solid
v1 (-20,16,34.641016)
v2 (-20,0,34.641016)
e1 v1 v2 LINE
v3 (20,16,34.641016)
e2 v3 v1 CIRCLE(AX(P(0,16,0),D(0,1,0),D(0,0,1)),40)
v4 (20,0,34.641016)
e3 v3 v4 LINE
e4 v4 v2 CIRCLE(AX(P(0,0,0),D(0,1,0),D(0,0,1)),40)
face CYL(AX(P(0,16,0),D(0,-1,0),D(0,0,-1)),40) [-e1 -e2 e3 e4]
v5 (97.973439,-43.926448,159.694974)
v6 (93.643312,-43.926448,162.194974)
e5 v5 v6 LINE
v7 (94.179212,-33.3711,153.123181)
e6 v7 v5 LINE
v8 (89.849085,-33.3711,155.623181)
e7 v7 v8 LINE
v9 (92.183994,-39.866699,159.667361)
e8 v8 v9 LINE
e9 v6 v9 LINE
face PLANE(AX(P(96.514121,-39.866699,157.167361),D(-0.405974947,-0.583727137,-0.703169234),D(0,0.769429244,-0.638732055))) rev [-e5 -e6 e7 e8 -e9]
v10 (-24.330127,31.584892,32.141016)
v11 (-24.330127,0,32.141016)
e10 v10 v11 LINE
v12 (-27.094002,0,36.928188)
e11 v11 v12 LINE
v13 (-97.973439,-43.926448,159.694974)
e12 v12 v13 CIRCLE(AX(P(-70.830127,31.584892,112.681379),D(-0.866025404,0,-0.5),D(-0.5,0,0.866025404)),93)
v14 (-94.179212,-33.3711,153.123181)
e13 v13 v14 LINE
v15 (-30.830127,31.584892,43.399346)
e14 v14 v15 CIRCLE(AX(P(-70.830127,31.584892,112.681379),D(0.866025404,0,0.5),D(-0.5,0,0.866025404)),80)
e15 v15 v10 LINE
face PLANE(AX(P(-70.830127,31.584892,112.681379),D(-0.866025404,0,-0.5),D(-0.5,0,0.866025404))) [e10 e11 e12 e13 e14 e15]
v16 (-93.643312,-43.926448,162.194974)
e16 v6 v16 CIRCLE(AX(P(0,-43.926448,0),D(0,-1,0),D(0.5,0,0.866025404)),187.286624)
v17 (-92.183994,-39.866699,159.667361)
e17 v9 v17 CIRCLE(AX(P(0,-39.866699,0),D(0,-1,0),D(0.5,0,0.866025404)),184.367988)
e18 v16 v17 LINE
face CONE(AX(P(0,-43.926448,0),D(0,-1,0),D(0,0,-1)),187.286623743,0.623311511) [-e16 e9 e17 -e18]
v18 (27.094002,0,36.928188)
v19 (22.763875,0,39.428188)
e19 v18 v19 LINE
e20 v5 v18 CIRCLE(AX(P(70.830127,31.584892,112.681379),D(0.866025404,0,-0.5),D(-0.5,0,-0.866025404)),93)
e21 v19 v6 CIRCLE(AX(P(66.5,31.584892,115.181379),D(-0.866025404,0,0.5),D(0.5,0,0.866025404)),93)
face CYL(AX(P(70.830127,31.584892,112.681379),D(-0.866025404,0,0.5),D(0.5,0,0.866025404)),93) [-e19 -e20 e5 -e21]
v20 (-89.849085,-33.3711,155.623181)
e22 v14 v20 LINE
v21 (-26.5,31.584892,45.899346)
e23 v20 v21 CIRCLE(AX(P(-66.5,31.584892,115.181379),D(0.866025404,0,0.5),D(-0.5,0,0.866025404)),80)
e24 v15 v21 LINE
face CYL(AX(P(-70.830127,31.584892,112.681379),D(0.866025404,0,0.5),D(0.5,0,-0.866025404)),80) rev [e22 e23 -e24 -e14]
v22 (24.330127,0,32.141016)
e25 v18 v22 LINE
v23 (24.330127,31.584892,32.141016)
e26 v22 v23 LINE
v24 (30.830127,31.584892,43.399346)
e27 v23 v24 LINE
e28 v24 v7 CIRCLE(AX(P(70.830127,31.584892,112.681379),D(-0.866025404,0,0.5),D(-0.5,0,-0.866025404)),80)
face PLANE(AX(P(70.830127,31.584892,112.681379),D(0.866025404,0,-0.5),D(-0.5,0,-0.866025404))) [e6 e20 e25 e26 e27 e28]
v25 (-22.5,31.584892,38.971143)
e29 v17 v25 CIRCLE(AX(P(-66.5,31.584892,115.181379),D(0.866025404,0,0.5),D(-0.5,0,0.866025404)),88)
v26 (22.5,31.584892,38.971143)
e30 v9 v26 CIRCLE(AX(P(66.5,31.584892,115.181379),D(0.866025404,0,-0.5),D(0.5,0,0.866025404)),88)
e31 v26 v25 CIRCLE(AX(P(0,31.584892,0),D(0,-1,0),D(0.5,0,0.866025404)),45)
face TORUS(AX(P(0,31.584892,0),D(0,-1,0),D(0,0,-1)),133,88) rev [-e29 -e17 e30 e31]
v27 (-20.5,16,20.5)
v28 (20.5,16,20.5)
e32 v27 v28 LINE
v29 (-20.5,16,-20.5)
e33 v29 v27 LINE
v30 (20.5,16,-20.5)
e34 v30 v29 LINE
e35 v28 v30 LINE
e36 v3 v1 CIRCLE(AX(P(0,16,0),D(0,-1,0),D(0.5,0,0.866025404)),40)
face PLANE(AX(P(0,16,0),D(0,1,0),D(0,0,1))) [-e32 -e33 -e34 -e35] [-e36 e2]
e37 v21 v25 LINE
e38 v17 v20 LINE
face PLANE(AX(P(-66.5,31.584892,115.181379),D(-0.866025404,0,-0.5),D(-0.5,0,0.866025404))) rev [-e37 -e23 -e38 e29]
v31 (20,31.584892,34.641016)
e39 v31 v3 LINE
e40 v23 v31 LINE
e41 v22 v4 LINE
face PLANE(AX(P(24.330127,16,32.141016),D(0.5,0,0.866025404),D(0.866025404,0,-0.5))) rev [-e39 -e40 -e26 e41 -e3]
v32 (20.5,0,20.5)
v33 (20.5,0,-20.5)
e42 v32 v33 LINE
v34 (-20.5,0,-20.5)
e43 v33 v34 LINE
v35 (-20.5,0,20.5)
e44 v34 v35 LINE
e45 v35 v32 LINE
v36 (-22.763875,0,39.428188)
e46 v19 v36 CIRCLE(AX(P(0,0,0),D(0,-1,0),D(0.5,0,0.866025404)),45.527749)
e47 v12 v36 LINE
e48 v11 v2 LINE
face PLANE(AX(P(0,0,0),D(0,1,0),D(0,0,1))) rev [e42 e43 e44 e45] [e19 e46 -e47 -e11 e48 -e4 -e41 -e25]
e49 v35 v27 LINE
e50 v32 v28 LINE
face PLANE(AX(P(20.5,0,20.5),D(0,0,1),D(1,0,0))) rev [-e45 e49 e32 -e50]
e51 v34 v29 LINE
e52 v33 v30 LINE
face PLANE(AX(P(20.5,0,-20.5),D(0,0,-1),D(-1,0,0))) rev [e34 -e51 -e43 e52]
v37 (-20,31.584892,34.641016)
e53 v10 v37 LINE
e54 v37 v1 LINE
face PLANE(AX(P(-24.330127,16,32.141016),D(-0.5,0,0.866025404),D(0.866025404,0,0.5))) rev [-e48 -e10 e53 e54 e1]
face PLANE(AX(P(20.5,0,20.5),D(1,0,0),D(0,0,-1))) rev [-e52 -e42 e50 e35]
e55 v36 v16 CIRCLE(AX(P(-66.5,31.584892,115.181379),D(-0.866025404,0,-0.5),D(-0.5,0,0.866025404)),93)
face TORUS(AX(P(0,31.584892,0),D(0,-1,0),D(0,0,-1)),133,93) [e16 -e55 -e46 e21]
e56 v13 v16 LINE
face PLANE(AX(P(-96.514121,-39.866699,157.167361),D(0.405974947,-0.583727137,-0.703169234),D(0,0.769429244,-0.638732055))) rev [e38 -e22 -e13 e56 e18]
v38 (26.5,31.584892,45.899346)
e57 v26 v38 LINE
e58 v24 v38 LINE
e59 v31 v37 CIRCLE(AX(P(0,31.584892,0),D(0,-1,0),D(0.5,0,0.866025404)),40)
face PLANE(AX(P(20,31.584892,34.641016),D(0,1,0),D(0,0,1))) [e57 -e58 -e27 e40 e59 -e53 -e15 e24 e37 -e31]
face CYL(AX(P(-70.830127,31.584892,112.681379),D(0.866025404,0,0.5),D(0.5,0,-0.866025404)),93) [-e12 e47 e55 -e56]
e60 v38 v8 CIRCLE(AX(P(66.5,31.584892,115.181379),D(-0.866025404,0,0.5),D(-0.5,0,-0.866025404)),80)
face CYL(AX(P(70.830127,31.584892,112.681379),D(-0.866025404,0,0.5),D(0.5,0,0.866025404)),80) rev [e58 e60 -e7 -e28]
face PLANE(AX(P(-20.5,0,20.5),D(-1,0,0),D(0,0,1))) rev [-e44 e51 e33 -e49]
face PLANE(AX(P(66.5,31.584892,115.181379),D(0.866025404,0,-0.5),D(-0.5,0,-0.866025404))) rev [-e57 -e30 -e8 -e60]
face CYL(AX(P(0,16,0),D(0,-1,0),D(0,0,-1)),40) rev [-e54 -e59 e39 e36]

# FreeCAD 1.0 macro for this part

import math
import FreeCAD as App
import Part
import Sketcher
from FreeCAD import Vector
Q = App.Units.Quantity

doc = App.newDocument("Part")
body = doc.addObject("PartDesign::Body", "Body")

sketch1 = body.newObject("Sketcher::SketchObject", "Sketch")
sketch1.AttachmentSupport = (doc.getObject("XZ_Plane"), [""])
sketch1.MapMode = "FlatFace"
sketch1.addGeometry(Part.Circle(Vector(0, 0, 0), Vector(0, 0, 1), 40), False)
sketch1.addConstraint([
    Sketcher.Constraint("Coincident", 0, 3, -1, 1),
    Sketcher.Constraint("Diameter", 0, Q("80 mm")),
])
pad1 = body.newObject("PartDesign::Pad", "Pad")
pad1.Profile = sketch1
pad1.Length = 16
pad1.Reversed = True

sketch2 = body.newObject("Sketcher::SketchObject", "Sketch001")
sketch2.AttachmentSupport = (doc.getObject("XZ_Plane"), [""])
sketch2.MapMode = "FlatFace"
sketch2.AttachmentOffset = App.Placement(Vector(0, 0, -16), App.Rotation())
sketch2.addGeometry([
    Part.LineSegment(Vector(-20, -20, 0), Vector(-20, 20, 0)),
    Part.LineSegment(Vector(-20, 20, 0), Vector(20, 20, 0)),
    Part.LineSegment(Vector(20, 20, 0), Vector(20, -20, 0)),
    Part.LineSegment(Vector(20, -20, 0), Vector(-20, -20, 0)),
], False)
sketch2.addConstraint([
    Sketcher.Constraint("Coincident", 0, 2, 1, 1),
    Sketcher.Constraint("Coincident", 1, 2, 2, 1),
    Sketcher.Constraint("Coincident", 2, 2, 3, 1),
    Sketcher.Constraint("Coincident", 3, 2, 0, 1),
    Sketcher.Constraint("Vertical", 0),
    Sketcher.Constraint("Horizontal", 1),
    Sketcher.Constraint("Vertical", 2),
    Sketcher.Constraint("Horizontal", 3),
    Sketcher.Constraint("Symmetric", 0, 2, 2, 2, -1, 1),
    Sketcher.Constraint("Equal", 3, 0),
    Sketcher.Constraint("DistanceX", 1, 1, 1, 2, Q("41 mm")),
])
pocket1 = body.newObject("PartDesign::Pocket", "Pocket")
pocket1.Profile = sketch2
pocket1.Type = "ThroughAll"
pocket1.Reversed = True

sketch3 = body.newObject("Sketcher::SketchObject", "Sketch002")
sketch3.AttachmentSupport = (doc.getObject("YZ_Plane"), [""])
sketch3.MapMode = "FlatFace"
sketch3.addGeometry([
    Part.LineSegment(Vector(31.6, 40, 0), Vector(0, 40, 0)),
    Part.LineSegment(Vector(0, 40, 0), Vector(0, 45.5, 0)),
    Part.ArcOfCircle(Part.Circle(Vector(31.6, 133, 0), Vector(0, 0, 1), 93), math.radians(144), math.radians(250)),
    Part.LineSegment(Vector(-43.9, 187.3, 0), Vector(-39.9, 184.4, 0)),
    Part.ArcOfCircle(Part.Circle(Vector(31.6, 133, 0), Vector(0, 0, 1), 88), math.radians(144), math.radians(270)),
    Part.LineSegment(Vector(31.6, 45, 0), Vector(31.6, 40, 0)),
], False)
sketch3.addConstraint([
    Sketcher.Constraint("Coincident", 0, 2, 1, 1),
    Sketcher.Constraint("Coincident", 1, 2, 2, 2),
    Sketcher.Constraint("Coincident", 2, 1, 3, 1),
    Sketcher.Constraint("Coincident", 3, 2, 4, 1),
    Sketcher.Constraint("Coincident", 4, 2, 5, 1),
    Sketcher.Constraint("Coincident", 5, 2, 0, 1),
    Sketcher.Constraint("Horizontal", 0),
    Sketcher.Constraint("Vertical", 1),
    Sketcher.Constraint("Vertical", 5),
    Sketcher.Constraint("Coincident", 4, 3, 2, 3),
    Sketcher.Constraint("PointOnObject", 0, 2, -2),
    Sketcher.Constraint("Vertical", 2, 3, 4, 2),
    Sketcher.Constraint("Radius", 2, Q("93 mm")),
    Sketcher.Constraint("Radius", 4, Q("88 mm")),
    Sketcher.Constraint("DistanceY", 5, 2, 5, 1, Q("5 mm")),
    Sketcher.Constraint("DistanceY", -1, 1, 2, 3, Q("133 mm")),
    Sketcher.Constraint("DistanceX", 0, 2, 0, 1, Q("31.584892 mm")),
    Sketcher.Constraint("DistanceX", 3, 2, -1, 1, Q("39.866699 mm")),
    Sketcher.Constraint("DistanceX", 2, 1, -1, 1, Q("43.926448 mm")),
])

sketch4 = body.newObject("Sketcher::SketchObject", "Sketch003")
sketch4.AttachmentSupport = (doc.getObject("XZ_Plane"), [""])
sketch4.MapMode = "FlatFace"
sketch4.AttachmentOffset = App.Placement(Vector(0, 0, -16), App.Rotation())
sketch4.addGeometry(Part.ArcOfCircle(Part.Circle(Vector(0, 0, 0), Vector(0, 0, 1), 40), math.radians(60), math.radians(120)), False)
sketch4.addConstraint([
    Sketcher.Constraint("Coincident", 0, 3, -1, 1),
    Sketcher.Constraint("Radius", 0, Q("40 mm")),
    Sketcher.Constraint("DistanceX", -1, 1, 0, 1, Q("20 mm")),
    Sketcher.Constraint("DistanceX", 0, 2, -1, 1, Q("20 mm")),
])
doc.recompute()

additivepipe = body.newObject("PartDesign::AdditivePipe", "AdditivePipe")
additivepipe.Profile = sketch3
additivepipe.Spine = (sketch4, ["Edge1"])

sketch5 = body.newObject("Sketcher::SketchObject", "Sketch004")
sketch5.Placement = App.Placement(Vector(0, 0, 0), App.Rotation(Vector(-0.5, 0, -0.866025404), Vector(0, 1, 0), Vector(0.866025404, 0, -0.5), "ZXY"))
sketch5.addGeometry([
    Part.LineSegment(Vector(-180, -33, 0), Vector(-184, -40, 0)),
    Part.LineSegment(Vector(-184, -40, 0), Vector(-187, -44, 0)),
    Part.ArcOfCircle(Part.Circle(Vector(-133, 32, 0), Vector(0, 0, 1), 93), math.radians(-126), math.radians(-20)),
    Part.LineSegment(Vector(-46, 0, 0), Vector(-40, 0, 0)),
    Part.LineSegment(Vector(-40, 0, 0), Vector(-40, 32, 0)),
    Part.LineSegment(Vector(-40, 32, 0), Vector(-53, 32, 0)),
    Part.ArcOfCircle(Part.Circle(Vector(-133, 32, 0), Vector(0, 0, 1), 80), math.radians(-126), math.radians(0)),
], False)
sketch5.addConstraint([
    Sketcher.Constraint("Coincident", 0, 2, 1, 1),
    Sketcher.Constraint("Coincident", 1, 2, 2, 1),
    Sketcher.Constraint("Coincident", 2, 2, 3, 1),
    Sketcher.Constraint("Coincident", 3, 2, 4, 1),
    Sketcher.Constraint("Coincident", 4, 2, 5, 1),
    Sketcher.Constraint("Coincident", 5, 2, 6, 2),
    Sketcher.Constraint("Coincident", 6, 1, 0, 1),
    Sketcher.Constraint("Horizontal", 3),
    Sketcher.Constraint("Vertical", 4),
    Sketcher.Constraint("Horizontal", 5),
    Sketcher.Constraint("Coincident", 6, 3, 2, 3),
    Sketcher.Constraint("PointOnObject", 2, 2, -1),
    Sketcher.Constraint("Parallel", 0, 1),
    Sketcher.Constraint("Horizontal", 6, 3, 4, 2),
    Sketcher.Constraint("Radius", 2, Q("93 mm")),
    Sketcher.Constraint("Radius", 6, Q("80 mm")),
    Sketcher.Constraint("DistanceX", 5, 2, 5, 1, Q("13 mm")),
    Sketcher.Constraint("Distance", 0, Q("8 mm")),
    Sketcher.Constraint("DistanceX", 2, 3, -1, 1, Q("133 mm")),
    Sketcher.Constraint("DistanceX", 3, 1, 3, 2, Q("5.527749 mm")),
    Sketcher.Constraint("DistanceY", 0, 2, -1, 1, Q("39.866699 mm")),
    Sketcher.Constraint("DistanceY", 6, 1, -1, 1, Q("33.3711 mm")),
])
pad2 = body.newObject("PartDesign::Pad", "Pad001")
pad2.Profile = sketch5
pad2.Length = 5

sketch6 = body.newObject("Sketcher::SketchObject", "Sketch005")
sketch6.Placement = App.Placement(Vector(0, 0, 0), App.Rotation(Vector(-0.5, 0, 0.866025404), Vector(0, 1, 0), Vector(-0.866025404, 0, -0.5), "ZXY"))
sketch6.addGeometry([
    Part.ArcOfCircle(Part.Circle(Vector(133, 32, 0), Vector(0, 0, 1), 80), math.radians(-180), math.radians(-54)),
    Part.LineSegment(Vector(53, 32, 0), Vector(40, 32, 0)),
    Part.LineSegment(Vector(40, 32, 0), Vector(40, 0, 0)),
    Part.LineSegment(Vector(40, 0, 0), Vector(46, 0, 0)),
    Part.ArcOfCircle(Part.Circle(Vector(133, 32, 0), Vector(0, 0, 1), 93), math.radians(-160), math.radians(-54)),
    Part.LineSegment(Vector(187, -44, 0), Vector(184, -40, 0)),
    Part.LineSegment(Vector(184, -40, 0), Vector(180, -33, 0)),
], False)
sketch6.addConstraint([
    Sketcher.Constraint("Coincident", 0, 1, 1, 1),
    Sketcher.Constraint("Coincident", 1, 2, 2, 1),
    Sketcher.Constraint("Coincident", 2, 2, 3, 1),
    Sketcher.Constraint("Coincident", 3, 2, 4, 1),
    Sketcher.Constraint("Coincident", 4, 2, 5, 1),
    Sketcher.Constraint("Coincident", 5, 2, 6, 1),
    Sketcher.Constraint("Coincident", 6, 2, 0, 2),
    Sketcher.Constraint("Horizontal", 1),
    Sketcher.Constraint("Vertical", 2),
    Sketcher.Constraint("Horizontal", 3),
    Sketcher.Constraint("Coincident", 4, 3, 0, 3),
    Sketcher.Constraint("PointOnObject", 2, 2, -1),
    Sketcher.Constraint("Parallel", 5, 6),
    Sketcher.Constraint("Horizontal", 4, 3, 0, 1),
    Sketcher.Constraint("Radius", 0, Q("80 mm")),
    Sketcher.Constraint("Radius", 4, Q("93 mm")),
    Sketcher.Constraint("DistanceX", 1, 2, 1, 1, Q("13 mm")),
    Sketcher.Constraint("Distance", 5, Q("5 mm")),
    Sketcher.Constraint("DistanceX", -1, 1, 0, 3, Q("133 mm")),
    Sketcher.Constraint("DistanceX", 3, 1, 3, 2, Q("5.527749 mm")),
    Sketcher.Constraint("DistanceY", 5, 2, -1, 1, Q("39.866699 mm")),
    Sketcher.Constraint("DistanceY", 6, 2, -1, 1, Q("33.3711 mm")),
])
pad3 = body.newObject("PartDesign::Pad", "Pad002")
pad3.Profile = sketch6
pad3.Length = 5

doc.recompute()
